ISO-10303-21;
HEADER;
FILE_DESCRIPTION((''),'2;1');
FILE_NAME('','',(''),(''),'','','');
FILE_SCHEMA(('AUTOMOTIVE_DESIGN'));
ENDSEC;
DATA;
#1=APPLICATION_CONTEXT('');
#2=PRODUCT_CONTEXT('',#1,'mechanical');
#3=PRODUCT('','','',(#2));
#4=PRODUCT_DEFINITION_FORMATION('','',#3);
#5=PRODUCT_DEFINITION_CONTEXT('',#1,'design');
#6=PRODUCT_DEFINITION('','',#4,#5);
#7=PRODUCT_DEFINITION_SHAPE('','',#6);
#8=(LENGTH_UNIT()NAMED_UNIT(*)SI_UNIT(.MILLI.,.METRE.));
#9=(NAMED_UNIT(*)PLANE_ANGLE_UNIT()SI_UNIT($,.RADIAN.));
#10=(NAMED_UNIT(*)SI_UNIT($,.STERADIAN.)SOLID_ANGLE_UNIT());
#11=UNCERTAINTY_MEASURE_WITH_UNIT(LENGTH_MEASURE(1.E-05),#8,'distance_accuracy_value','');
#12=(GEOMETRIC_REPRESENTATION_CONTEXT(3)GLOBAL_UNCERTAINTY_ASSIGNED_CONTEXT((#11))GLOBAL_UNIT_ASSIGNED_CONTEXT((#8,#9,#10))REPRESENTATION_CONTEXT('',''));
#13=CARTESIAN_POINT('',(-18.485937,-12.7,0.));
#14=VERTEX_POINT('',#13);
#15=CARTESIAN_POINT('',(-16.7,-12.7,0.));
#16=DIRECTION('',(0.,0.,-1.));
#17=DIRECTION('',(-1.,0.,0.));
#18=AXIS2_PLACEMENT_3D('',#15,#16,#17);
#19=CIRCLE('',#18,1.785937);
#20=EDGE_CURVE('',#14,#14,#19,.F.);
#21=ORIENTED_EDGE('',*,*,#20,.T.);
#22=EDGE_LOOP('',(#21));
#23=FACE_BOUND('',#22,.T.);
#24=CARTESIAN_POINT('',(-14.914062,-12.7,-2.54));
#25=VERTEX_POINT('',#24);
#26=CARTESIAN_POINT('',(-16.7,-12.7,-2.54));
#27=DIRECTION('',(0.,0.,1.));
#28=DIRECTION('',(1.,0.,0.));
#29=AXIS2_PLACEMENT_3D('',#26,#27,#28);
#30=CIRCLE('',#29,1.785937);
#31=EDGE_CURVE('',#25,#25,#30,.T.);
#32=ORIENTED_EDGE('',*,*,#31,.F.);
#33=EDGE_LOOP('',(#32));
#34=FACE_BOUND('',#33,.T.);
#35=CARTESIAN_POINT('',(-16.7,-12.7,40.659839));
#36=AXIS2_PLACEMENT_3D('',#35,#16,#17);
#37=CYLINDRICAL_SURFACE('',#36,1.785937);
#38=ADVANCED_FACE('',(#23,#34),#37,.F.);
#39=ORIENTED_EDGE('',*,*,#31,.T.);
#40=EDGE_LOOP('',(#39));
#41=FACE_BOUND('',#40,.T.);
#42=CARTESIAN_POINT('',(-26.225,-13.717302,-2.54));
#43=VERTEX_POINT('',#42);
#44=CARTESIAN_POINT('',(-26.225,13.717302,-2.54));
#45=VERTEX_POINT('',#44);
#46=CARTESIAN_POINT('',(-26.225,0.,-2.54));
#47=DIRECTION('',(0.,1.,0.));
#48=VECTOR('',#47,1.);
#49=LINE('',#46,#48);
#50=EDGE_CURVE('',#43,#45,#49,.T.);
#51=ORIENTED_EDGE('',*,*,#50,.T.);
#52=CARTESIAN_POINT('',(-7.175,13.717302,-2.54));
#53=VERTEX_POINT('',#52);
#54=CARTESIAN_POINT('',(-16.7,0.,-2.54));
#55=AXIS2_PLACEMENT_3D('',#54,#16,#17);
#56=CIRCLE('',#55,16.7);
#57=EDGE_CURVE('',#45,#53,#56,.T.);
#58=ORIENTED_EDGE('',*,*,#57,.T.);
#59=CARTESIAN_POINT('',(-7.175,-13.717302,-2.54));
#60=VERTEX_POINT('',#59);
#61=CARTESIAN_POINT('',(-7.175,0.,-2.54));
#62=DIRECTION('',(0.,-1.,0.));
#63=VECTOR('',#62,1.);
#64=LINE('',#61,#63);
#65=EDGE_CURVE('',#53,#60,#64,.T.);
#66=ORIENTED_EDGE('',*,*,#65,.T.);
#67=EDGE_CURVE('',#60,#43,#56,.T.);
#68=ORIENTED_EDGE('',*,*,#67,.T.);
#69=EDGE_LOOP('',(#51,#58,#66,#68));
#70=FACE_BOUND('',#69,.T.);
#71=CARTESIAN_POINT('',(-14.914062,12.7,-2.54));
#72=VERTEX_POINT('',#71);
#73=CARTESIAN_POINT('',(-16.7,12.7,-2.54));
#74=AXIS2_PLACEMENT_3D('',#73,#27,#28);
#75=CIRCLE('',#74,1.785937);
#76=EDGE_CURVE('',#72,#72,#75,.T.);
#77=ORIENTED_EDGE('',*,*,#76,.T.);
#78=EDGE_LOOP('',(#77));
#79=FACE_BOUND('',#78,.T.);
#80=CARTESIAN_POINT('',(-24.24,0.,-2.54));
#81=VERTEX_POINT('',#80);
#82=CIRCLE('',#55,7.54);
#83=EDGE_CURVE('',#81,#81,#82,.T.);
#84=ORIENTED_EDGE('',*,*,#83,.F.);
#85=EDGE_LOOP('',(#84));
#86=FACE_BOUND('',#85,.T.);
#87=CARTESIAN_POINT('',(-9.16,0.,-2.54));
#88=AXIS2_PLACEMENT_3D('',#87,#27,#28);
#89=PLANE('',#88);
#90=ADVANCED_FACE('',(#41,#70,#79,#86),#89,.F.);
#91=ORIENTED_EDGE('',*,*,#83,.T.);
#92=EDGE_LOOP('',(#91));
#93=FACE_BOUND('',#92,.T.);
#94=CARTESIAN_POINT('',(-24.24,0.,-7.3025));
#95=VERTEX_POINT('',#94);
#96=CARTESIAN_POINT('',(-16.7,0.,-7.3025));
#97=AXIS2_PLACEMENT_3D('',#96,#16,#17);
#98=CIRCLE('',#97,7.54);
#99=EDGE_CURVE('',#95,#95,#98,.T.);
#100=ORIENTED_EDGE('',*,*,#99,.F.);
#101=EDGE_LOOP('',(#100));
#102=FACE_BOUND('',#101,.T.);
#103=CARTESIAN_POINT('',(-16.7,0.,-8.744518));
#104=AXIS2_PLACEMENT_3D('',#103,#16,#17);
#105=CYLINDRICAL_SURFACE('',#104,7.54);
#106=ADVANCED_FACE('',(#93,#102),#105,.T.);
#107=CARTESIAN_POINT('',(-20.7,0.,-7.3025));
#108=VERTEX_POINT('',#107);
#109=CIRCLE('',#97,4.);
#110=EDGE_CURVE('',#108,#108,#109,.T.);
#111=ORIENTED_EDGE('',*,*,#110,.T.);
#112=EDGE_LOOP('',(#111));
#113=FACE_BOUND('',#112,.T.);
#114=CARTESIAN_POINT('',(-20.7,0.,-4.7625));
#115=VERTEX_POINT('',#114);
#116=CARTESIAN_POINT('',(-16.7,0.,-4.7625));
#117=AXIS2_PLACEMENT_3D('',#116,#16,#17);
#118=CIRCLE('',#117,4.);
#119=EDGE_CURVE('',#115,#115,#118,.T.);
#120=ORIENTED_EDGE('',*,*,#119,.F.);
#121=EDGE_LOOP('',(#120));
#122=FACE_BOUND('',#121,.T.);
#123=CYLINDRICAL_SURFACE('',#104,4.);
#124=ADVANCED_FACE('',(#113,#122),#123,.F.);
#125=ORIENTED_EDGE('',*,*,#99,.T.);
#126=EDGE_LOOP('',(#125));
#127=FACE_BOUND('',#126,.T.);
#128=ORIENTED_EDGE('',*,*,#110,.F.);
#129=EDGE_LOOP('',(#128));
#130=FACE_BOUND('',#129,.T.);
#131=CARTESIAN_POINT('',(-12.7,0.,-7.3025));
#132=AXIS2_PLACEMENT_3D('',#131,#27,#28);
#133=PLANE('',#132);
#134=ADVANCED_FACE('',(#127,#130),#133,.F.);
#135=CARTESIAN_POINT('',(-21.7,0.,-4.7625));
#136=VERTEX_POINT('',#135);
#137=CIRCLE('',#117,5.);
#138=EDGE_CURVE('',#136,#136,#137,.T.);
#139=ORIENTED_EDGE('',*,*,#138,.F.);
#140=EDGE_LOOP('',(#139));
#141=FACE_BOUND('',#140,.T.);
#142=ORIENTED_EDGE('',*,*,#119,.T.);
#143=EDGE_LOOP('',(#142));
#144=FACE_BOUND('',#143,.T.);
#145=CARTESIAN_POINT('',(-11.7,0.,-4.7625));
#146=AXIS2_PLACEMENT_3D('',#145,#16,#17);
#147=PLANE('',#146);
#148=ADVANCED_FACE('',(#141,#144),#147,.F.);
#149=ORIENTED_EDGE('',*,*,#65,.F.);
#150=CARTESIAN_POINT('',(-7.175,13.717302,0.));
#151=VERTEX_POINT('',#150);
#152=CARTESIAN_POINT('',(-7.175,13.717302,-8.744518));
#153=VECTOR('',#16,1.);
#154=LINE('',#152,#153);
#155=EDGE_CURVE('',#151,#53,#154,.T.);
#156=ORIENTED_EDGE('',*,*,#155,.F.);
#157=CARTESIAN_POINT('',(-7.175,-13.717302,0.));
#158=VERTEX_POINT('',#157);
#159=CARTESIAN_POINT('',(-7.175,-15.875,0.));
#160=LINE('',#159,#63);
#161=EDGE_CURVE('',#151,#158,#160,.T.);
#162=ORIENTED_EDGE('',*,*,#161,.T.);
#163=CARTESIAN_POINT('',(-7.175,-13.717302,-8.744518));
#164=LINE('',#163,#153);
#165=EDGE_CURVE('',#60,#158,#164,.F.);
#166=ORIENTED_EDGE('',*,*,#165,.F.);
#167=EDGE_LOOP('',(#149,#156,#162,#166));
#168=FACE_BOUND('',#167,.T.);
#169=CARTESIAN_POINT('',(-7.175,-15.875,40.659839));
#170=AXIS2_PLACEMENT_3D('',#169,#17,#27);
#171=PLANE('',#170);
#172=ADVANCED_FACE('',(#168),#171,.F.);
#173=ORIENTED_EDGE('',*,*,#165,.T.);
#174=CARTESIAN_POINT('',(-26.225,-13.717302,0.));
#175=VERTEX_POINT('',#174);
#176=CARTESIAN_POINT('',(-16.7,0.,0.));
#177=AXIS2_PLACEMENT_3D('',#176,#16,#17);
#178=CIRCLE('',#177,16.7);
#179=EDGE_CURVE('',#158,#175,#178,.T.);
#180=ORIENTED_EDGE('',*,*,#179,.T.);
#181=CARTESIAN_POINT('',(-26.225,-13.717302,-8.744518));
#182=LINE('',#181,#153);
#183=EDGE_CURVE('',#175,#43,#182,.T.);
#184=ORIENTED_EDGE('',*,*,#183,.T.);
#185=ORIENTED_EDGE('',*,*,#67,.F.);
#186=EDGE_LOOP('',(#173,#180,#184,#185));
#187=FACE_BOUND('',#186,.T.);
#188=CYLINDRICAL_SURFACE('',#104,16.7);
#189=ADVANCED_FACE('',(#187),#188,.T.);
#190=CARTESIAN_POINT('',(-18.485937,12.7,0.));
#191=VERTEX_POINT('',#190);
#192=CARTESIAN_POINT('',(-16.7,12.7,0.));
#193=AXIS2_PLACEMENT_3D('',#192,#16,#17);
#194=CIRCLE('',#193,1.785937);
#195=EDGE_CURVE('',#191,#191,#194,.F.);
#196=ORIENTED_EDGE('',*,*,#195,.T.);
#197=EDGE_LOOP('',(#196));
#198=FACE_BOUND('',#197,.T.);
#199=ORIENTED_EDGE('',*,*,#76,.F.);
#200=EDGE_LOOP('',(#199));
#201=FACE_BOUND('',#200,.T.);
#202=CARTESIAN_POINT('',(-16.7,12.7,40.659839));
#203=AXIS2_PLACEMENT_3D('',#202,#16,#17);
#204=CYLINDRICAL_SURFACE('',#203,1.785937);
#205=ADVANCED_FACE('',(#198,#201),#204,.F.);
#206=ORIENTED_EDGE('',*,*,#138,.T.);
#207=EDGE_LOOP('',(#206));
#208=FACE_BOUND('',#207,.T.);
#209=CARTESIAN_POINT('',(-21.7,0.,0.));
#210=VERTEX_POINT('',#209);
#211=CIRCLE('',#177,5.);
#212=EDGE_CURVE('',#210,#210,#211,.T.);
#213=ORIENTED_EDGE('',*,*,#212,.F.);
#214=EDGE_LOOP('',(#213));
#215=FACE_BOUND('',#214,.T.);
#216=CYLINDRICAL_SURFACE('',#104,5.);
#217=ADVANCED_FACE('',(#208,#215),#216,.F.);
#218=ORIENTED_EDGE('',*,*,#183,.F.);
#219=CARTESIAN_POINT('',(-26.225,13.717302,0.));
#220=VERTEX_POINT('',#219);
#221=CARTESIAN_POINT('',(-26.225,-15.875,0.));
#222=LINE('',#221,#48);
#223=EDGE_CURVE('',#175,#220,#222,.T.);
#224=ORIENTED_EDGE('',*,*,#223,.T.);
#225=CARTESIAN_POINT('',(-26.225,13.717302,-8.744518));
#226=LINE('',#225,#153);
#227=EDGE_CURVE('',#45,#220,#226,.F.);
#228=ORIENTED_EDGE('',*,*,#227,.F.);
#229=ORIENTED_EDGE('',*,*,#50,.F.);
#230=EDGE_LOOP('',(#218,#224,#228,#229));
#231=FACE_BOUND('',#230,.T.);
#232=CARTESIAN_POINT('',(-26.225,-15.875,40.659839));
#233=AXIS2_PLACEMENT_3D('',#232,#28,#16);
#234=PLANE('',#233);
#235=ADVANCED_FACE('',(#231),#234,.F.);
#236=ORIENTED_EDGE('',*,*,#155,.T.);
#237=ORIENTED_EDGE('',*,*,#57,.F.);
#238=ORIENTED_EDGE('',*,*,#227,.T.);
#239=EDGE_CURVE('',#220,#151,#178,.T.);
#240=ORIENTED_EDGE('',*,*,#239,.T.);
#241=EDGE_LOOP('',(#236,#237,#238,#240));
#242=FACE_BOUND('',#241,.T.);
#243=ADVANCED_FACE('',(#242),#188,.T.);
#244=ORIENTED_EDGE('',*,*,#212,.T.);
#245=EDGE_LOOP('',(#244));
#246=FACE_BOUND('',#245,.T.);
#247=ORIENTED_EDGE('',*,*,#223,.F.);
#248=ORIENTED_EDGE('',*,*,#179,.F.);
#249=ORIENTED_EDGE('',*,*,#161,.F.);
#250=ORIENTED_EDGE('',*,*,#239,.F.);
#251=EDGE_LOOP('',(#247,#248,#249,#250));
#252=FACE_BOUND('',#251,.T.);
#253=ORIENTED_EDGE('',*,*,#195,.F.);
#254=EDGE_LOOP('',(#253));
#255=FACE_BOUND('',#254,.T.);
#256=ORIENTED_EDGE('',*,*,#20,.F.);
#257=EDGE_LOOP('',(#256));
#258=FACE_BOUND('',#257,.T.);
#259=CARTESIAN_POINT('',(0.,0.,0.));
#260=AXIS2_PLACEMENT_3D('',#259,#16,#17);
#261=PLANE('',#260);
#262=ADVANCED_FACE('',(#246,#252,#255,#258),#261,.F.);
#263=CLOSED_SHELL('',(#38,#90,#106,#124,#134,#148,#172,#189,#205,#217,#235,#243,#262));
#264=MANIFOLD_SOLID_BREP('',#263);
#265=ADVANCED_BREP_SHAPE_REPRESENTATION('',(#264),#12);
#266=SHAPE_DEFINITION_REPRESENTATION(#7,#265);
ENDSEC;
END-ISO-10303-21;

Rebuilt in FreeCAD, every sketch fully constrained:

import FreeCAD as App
import Part
import Sketcher

V = App.Vector
Q = App.Units.Quantity

doc = App.newDocument("Part")
body = doc.addObject("PartDesign::Body", "Body")

sketch1 = body.newObject("Sketcher::SketchObject", "Sketch")
sketch1.AttachmentSupport = (doc.getObject("XZ_Plane"), [""])
sketch1.MapMode = "FlatFace"
sketch1.addGeometry([
    Part.LineSegment(V(-11.7, 0, 0), V(0, 0, 0)),
    Part.LineSegment(V(0, 0, 0), V(0, -2.5, 0)),
    Part.LineSegment(V(0, -2.5, 0), V(-9.2, -2.5, 0)),
    Part.LineSegment(V(-9.2, -2.5, 0), V(-9.2, -7.3, 0)),
    Part.LineSegment(V(-9.2, -7.3, 0), V(-12.7, -7.3, 0)),
    Part.LineSegment(V(-12.7, -7.3, 0), V(-12.7, -4.8, 0)),
    Part.LineSegment(V(-12.7, -4.8, 0), V(-11.7, -4.8, 0)),
    Part.LineSegment(V(-11.7, -4.8, 0), V(-11.7, 0, 0)),
], False)
sketch1.addGeometry(Part.LineSegment(V(-16.7, -7.3, 0), V(-16.7, 0, 0)), True)
sketch1.addConstraint([
    Sketcher.Constraint("Coincident", 0, 2, 1, 1),
    Sketcher.Constraint("Coincident", 1, 2, 2, 1),
    Sketcher.Constraint("Coincident", 2, 2, 3, 1),
    Sketcher.Constraint("Coincident", 3, 2, 4, 1),
    Sketcher.Constraint("Coincident", 4, 2, 5, 1),
    Sketcher.Constraint("Coincident", 5, 2, 6, 1),
    Sketcher.Constraint("Coincident", 6, 2, 7, 1),
    Sketcher.Constraint("Coincident", 7, 2, 0, 1),
    Sketcher.Constraint("Horizontal", 0),
    Sketcher.Constraint("Vertical", 1),
    Sketcher.Constraint("Horizontal", 2),
    Sketcher.Constraint("Vertical", 3),
    Sketcher.Constraint("Horizontal", 4),
    Sketcher.Constraint("Vertical", 5),
    Sketcher.Constraint("Horizontal", 6),
    Sketcher.Constraint("Vertical", 7),
    Sketcher.Constraint("Vertical", 8),
    Sketcher.Constraint("Coincident", 0, 2, -1, 1),
    Sketcher.Constraint("PointOnObject", 8, 2, -1),
    Sketcher.Constraint("Horizontal", 4, 2, 8, 1),
    Sketcher.Constraint("Equal", 1, 5),
    Sketcher.Constraint("DistanceY", 1, 2, 1, 1, Q("0.1 in")),
    Sketcher.Constraint("DistanceX", 4, 2, -1, 1, Q("0.5 in")),
    Sketcher.Constraint("DistanceX", 6, 2, 2, 2, Q("0.1 in")),
    Sketcher.Constraint("DistanceY", 3, 2, 3, 1, Q("0.1875 in")),
    Sketcher.Constraint("DistanceX", 0, 1, 0, 2, 11.7),
    Sketcher.Constraint("DistanceX", 8, 1, -1, 1, 16.7),
])
revolution = body.newObject("PartDesign::Revolution", "Revolution")
revolution.Profile = sketch1
revolution.ReferenceAxis = (sketch1, ["Axis0"])
revolution.Angle = 360

sketch2 = body.newObject("Sketcher::SketchObject", "Sketch001")
sketch2.AttachmentSupport = (doc.getObject("XY_Plane"), [""])
sketch2.MapMode = "FlatFace"
sketch2.AttachmentOffset = App.Placement(V(0, 0, -0.2875 * 25.4), App.Rotation())
sketch2.addGeometry([
    Part.Circle(V(-16.7, -12.7, 0), V(0, 0, 1), 1.8),
    Part.Circle(V(-16.7, 12.7, 0), V(0, 0, 1), 1.8),
    Part.LineSegment(V(-26.2, 15.9, 0), V(-26.2, -15.9, 0)),
    Part.LineSegment(V(-26.2, -15.9, 0), V(-51.6, -15.9, 0)),
    Part.LineSegment(V(-51.6, -15.9, 0), V(-51.6, 15.9, 0)),
    Part.LineSegment(V(-51.6, 15.9, 0), V(-26.2, 15.9, 0)),
    Part.LineSegment(V(18.2, 15.9, 0), V(18.2, -15.9, 0)),
    Part.LineSegment(V(18.2, -15.9, 0), V(-7.2, -15.9, 0)),
    Part.LineSegment(V(-7.2, -15.9, 0), V(-7.2, 15.9, 0)),
    Part.LineSegment(V(-7.2, 15.9, 0), V(18.2, 15.9, 0)),
], False)
sketch2.addConstraint([
    Sketcher.Constraint("Coincident", 2, 2, 3, 1),
    Sketcher.Constraint("Coincident", 3, 2, 4, 1),
    Sketcher.Constraint("Coincident", 4, 2, 5, 1),
    Sketcher.Constraint("Coincident", 5, 2, 2, 1),
    Sketcher.Constraint("Coincident", 6, 2, 7, 1),
    Sketcher.Constraint("Coincident", 7, 2, 8, 1),
    Sketcher.Constraint("Coincident", 8, 2, 9, 1),
    Sketcher.Constraint("Coincident", 9, 2, 6, 1),
    Sketcher.Constraint("Vertical", 2),
    Sketcher.Constraint("Horizontal", 3),
    Sketcher.Constraint("Vertical", 4),
    Sketcher.Constraint("Horizontal", 5),
    Sketcher.Constraint("Vertical", 6),
    Sketcher.Constraint("Horizontal", 7),
    Sketcher.Constraint("Vertical", 8),
    Sketcher.Constraint("Horizontal", 9),
    Sketcher.Constraint("Equal", 0, 1),
    Sketcher.Constraint("Symmetric", 0, 3, 1, 3, -1),
    Sketcher.Constraint("Horizontal", 3, 2, 6, 2),
    Sketcher.Constraint("Horizontal", 5, 2, 8, 2),
    Sketcher.Constraint("Equal", 5, 7),
    Sketcher.Constraint("DistanceX", 3, 2, 3, 1, Q("1 in")),
    Sketcher.Constraint("Diameter", 0, Q("0.140625 in")),
    Sketcher.Constraint("DistanceY", 0, 3, 1, 3, Q("1 in")),
    Sketcher.Constraint("DistanceY", 2, 2, 2, 1, Q("1.25 in")),
    Sketcher.Constraint("DistanceX", 2, 2, 6, 2, Q("1.75 in")),
    Sketcher.Constraint("DistanceY", 2, 2, -1, 1, Q("0.625 in")),
    Sketcher.Constraint("DistanceX", 2, 2, 0, 3, Q("0.375 in")),
    Sketcher.Constraint("DistanceX", 0, 3, -1, 1, 16.7),
])
pocket1 = body.newObject("PartDesign::Pocket", "Pocket")
pocket1.Profile = sketch2
pocket1.Length = Q("0.2875 in")
pocket1.Reversed = True

doc.recompute()
